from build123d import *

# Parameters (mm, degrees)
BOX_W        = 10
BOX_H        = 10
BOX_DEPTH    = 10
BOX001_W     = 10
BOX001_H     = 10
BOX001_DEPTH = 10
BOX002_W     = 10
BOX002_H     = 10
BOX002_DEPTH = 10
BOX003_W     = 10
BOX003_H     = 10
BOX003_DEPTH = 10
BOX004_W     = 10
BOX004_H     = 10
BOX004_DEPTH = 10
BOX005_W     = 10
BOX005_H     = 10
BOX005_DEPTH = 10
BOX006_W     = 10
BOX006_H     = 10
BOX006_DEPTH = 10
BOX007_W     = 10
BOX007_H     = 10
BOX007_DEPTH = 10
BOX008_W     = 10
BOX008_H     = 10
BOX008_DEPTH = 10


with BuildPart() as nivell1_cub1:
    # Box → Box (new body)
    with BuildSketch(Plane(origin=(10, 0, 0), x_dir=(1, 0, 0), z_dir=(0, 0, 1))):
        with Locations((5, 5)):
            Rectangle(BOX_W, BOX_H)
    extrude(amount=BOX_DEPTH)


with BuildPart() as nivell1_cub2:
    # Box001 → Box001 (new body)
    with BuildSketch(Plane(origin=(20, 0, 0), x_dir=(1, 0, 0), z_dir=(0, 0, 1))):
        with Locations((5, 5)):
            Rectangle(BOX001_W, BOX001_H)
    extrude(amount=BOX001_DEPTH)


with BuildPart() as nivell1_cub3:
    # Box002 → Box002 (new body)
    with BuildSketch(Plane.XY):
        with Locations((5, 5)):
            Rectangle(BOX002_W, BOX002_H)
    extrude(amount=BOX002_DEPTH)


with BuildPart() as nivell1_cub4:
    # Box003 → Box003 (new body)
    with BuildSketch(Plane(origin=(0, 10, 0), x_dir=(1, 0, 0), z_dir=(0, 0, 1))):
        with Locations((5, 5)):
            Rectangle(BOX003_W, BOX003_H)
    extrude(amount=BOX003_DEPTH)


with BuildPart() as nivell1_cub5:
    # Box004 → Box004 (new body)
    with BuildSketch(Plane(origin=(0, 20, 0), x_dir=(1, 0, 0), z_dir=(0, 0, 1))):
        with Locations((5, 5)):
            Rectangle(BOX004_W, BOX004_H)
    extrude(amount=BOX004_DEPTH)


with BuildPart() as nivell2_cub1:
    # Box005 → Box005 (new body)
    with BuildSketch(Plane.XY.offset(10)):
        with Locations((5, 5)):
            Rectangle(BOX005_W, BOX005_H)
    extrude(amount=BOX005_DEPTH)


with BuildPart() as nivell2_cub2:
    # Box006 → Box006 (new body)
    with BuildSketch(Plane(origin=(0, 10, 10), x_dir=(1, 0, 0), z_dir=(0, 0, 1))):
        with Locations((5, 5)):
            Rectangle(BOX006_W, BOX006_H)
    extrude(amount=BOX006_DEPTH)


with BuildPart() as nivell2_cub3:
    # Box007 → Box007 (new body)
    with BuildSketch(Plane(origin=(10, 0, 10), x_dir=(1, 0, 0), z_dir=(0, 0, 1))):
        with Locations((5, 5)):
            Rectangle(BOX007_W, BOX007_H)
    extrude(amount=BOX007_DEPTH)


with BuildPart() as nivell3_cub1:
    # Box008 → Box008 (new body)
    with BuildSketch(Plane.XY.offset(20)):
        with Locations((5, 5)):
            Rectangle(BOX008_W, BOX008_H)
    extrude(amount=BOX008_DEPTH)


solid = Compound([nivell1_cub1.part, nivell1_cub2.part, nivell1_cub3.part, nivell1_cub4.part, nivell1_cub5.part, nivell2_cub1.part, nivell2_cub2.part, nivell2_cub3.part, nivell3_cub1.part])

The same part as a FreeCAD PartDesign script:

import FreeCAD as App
import Part
import Sketcher
Q = App.Units.Quantity

doc = App.newDocument("Part")
body = doc.addObject("PartDesign::Body", "Body")

sketch1 = doc.addObject("Sketcher::SketchObject", "Sketch")
body.addObject(sketch1)
sketch1.AttachmentSupport = (doc.XY_Plane, [""])
sketch1.MapMode = "FlatFace"
sketch1.addGeometry([
    Part.LineSegment(App.Vector(10, 10, 0), App.Vector(10, 0, 0)),
    Part.LineSegment(App.Vector(10, 0, 0), App.Vector(20, 0, 0)),
    Part.LineSegment(App.Vector(20, 0, 0), App.Vector(20, 10, 0)),
    Part.LineSegment(App.Vector(20, 10, 0), App.Vector(10, 10, 0)),
], False)
sketch1.addConstraint([
    Sketcher.Constraint("Coincident", 0, 2, 1, 1),
    Sketcher.Constraint("Coincident", 1, 2, 2, 1),
    Sketcher.Constraint("Coincident", 2, 2, 3, 1),
    Sketcher.Constraint("Coincident", 3, 2, 0, 1),
    Sketcher.Constraint("Vertical", 0),
    Sketcher.Constraint("Horizontal", 1),
    Sketcher.Constraint("Vertical", 2),
    Sketcher.Constraint("Horizontal", 3),
    Sketcher.Constraint("PointOnObject", 0, 2, -1),
    Sketcher.Constraint("Equal", 3, 0),
    Sketcher.Constraint("DistanceX", 1, 1, 1, 2, Q("10 mm")),
    Sketcher.Constraint("DistanceX", -1, 1, 0, 2, Q("10 mm")),
])
pad1 = doc.addObject("PartDesign::Pad", "Pad")
body.addObject(pad1)
pad1.Profile = sketch1
pad1.Length = 10
body2 = doc.addObject("PartDesign::Body", "Body001")

sketch2 = doc.addObject("Sketcher::SketchObject", "Sketch001")
body2.addObject(sketch2)
sketch2.AttachmentSupport = (doc.getObject("XY_Plane001"), [""])
sketch2.MapMode = "FlatFace"
sketch2.addGeometry([
    Part.LineSegment(App.Vector(20, 10, 0), App.Vector(20, 0, 0)),
    Part.LineSegment(App.Vector(20, 0, 0), App.Vector(30, 0, 0)),
    Part.LineSegment(App.Vector(30, 0, 0), App.Vector(30, 10, 0)),
    Part.LineSegment(App.Vector(30, 10, 0), App.Vector(20, 10, 0)),
], False)
sketch2.addConstraint([
    Sketcher.Constraint("Coincident", 0, 2, 1, 1),
    Sketcher.Constraint("Coincident", 1, 2, 2, 1),
    Sketcher.Constraint("Coincident", 2, 2, 3, 1),
    Sketcher.Constraint("Coincident", 3, 2, 0, 1),
    Sketcher.Constraint("Vertical", 0),
    Sketcher.Constraint("Horizontal", 1),
    Sketcher.Constraint("Vertical", 2),
    Sketcher.Constraint("Horizontal", 3),
    Sketcher.Constraint("PointOnObject", 0, 2, -1),
    Sketcher.Constraint("Equal", 3, 0),
    Sketcher.Constraint("DistanceX", 1, 1, 1, 2, Q("10 mm")),
    Sketcher.Constraint("DistanceX", -1, 1, 0, 2, Q("20 mm")),
])
pad2 = doc.addObject("PartDesign::Pad", "Pad001")
body2.addObject(pad2)
pad2.Profile = sketch2
pad2.Length = 10
body3 = doc.addObject("PartDesign::Body", "Body002")

sketch3 = doc.addObject("Sketcher::SketchObject", "Sketch002")
body3.addObject(sketch3)
sketch3.AttachmentSupport = (doc.getObject("XY_Plane002"), [""])
sketch3.MapMode = "FlatFace"
sketch3.addGeometry([
    Part.LineSegment(App.Vector(0, 10, 0), App.Vector(0, 0, 0)),
    Part.LineSegment(App.Vector(0, 0, 0), App.Vector(10, 0, 0)),
    Part.LineSegment(App.Vector(10, 0, 0), App.Vector(10, 10, 0)),
    Part.LineSegment(App.Vector(10, 10, 0), App.Vector(0, 10, 0)),
], False)
sketch3.addConstraint([
    Sketcher.Constraint("Coincident", 0, 2, 1, 1),
    Sketcher.Constraint("Coincident", 1, 2, 2, 1),
    Sketcher.Constraint("Coincident", 2, 2, 3, 1),
    Sketcher.Constraint("Coincident", 3, 2, 0, 1),
    Sketcher.Constraint("Vertical", 0),
    Sketcher.Constraint("Horizontal", 1),
    Sketcher.Constraint("Vertical", 2),
    Sketcher.Constraint("Horizontal", 3),
    Sketcher.Constraint("Coincident", 0, 2, -1, 1),
    Sketcher.Constraint("Equal", 3, 0),
    Sketcher.Constraint("DistanceX", 1, 1, 1, 2, Q("10 mm")),
])
pad3 = doc.addObject("PartDesign::Pad", "Pad002")
body3.addObject(pad3)
pad3.Profile = sketch3
pad3.Length = 10
body4 = doc.addObject("PartDesign::Body", "Body003")

sketch4 = doc.addObject("Sketcher::SketchObject", "Sketch003")
body4.addObject(sketch4)
sketch4.AttachmentSupport = (doc.getObject("XY_Plane003"), [""])
sketch4.MapMode = "FlatFace"
sketch4.addGeometry([
    Part.LineSegment(App.Vector(0, 20, 0), App.Vector(0, 10, 0)),
    Part.LineSegment(App.Vector(0, 10, 0), App.Vector(10, 10, 0)),
    Part.LineSegment(App.Vector(10, 10, 0), App.Vector(10, 20, 0)),
    Part.LineSegment(App.Vector(10, 20, 0), App.Vector(0, 20, 0)),
], False)
sketch4.addConstraint([
    Sketcher.Constraint("Coincident", 0, 2, 1, 1),
    Sketcher.Constraint("Coincident", 1, 2, 2, 1),
    Sketcher.Constraint("Coincident", 2, 2, 3, 1),
    Sketcher.Constraint("Coincident", 3, 2, 0, 1),
    Sketcher.Constraint("Vertical", 0),
    Sketcher.Constraint("Horizontal", 1),
    Sketcher.Constraint("Vertical", 2),
    Sketcher.Constraint("Horizontal", 3),
    Sketcher.Constraint("PointOnObject", 0, 2, -2),
    Sketcher.Constraint("Equal", 3, 0),
    Sketcher.Constraint("DistanceX", 1, 1, 1, 2, Q("10 mm")),
    Sketcher.Constraint("DistanceY", -1, 1, 0, 2, Q("10 mm")),
])
pad4 = doc.addObject("PartDesign::Pad", "Pad003")
body4.addObject(pad4)
pad4.Profile = sketch4
pad4.Length = 10
body5 = doc.addObject("PartDesign::Body", "Body004")

sketch5 = doc.addObject("Sketcher::SketchObject", "Sketch004")
body5.addObject(sketch5)
sketch5.AttachmentSupport = (doc.getObject("XY_Plane004"), [""])
sketch5.MapMode = "FlatFace"
sketch5.addGeometry([
    Part.LineSegment(App.Vector(0, 30, 0), App.Vector(0, 20, 0)),
    Part.LineSegment(App.Vector(0, 20, 0), App.Vector(10, 20, 0)),
    Part.LineSegment(App.Vector(10, 20, 0), App.Vector(10, 30, 0)),
    Part.LineSegment(App.Vector(10, 30, 0), App.Vector(0, 30, 0)),
], False)
sketch5.addConstraint([
    Sketcher.Constraint("Coincident", 0, 2, 1, 1),
    Sketcher.Constraint("Coincident", 1, 2, 2, 1),
    Sketcher.Constraint("Coincident", 2, 2, 3, 1),
    Sketcher.Constraint("Coincident", 3, 2, 0, 1),
    Sketcher.Constraint("Vertical", 0),
    Sketcher.Constraint("Horizontal", 1),
    Sketcher.Constraint("Vertical", 2),
    Sketcher.Constraint("Horizontal", 3),
    Sketcher.Constraint("PointOnObject", 0, 2, -2),
    Sketcher.Constraint("Equal", 3, 0),
    Sketcher.Constraint("DistanceX", 1, 1, 1, 2, Q("10 mm")),
    Sketcher.Constraint("DistanceY", -1, 1, 0, 2, Q("20 mm")),
])
pad5 = doc.addObject("PartDesign::Pad", "Pad004")
body5.addObject(pad5)
pad5.Profile = sketch5
pad5.Length = 10
body6 = doc.addObject("PartDesign::Body", "Body005")

sketch6 = doc.addObject("Sketcher::SketchObject", "Sketch005")
body6.addObject(sketch6)
sketch6.AttachmentSupport = (doc.getObject("XY_Plane005"), [""])
sketch6.MapMode = "FlatFace"
sketch6.AttachmentOffset = App.Placement(App.Vector(0, 0, 10), App.Rotation())
sketch6.addGeometry([
    Part.LineSegment(App.Vector(0, 10, 0), App.Vector(0, 0, 0)),
    Part.LineSegment(App.Vector(0, 0, 0), App.Vector(10, 0, 0)),
    Part.LineSegment(App.Vector(10, 0, 0), App.Vector(10, 10, 0)),
    Part.LineSegment(App.Vector(10, 10, 0), App.Vector(0, 10, 0)),
], False)
sketch6.addConstraint([
    Sketcher.Constraint("Coincident", 0, 2, 1, 1),
    Sketcher.Constraint("Coincident", 1, 2, 2, 1),
    Sketcher.Constraint("Coincident", 2, 2, 3, 1),
    Sketcher.Constraint("Coincident", 3, 2, 0, 1),
    Sketcher.Constraint("Vertical", 0),
    Sketcher.Constraint("Horizontal", 1),
    Sketcher.Constraint("Vertical", 2),
    Sketcher.Constraint("Horizontal", 3),
    Sketcher.Constraint("Coincident", 0, 2, -1, 1),
    Sketcher.Constraint("Equal", 3, 0),
    Sketcher.Constraint("DistanceX", 1, 1, 1, 2, Q("10 mm")),
])
pad6 = doc.addObject("PartDesign::Pad", "Pad005")
body6.addObject(pad6)
pad6.Profile = sketch6
pad6.Length = 10
body7 = doc.addObject("PartDesign::Body", "Body006")

sketch7 = doc.addObject("Sketcher::SketchObject", "Sketch006")
body7.addObject(sketch7)
sketch7.AttachmentSupport = (doc.getObject("XY_Plane006"), [""])
sketch7.MapMode = "FlatFace"
sketch7.AttachmentOffset = App.Placement(App.Vector(0, 0, 10), App.Rotation())
sketch7.addGeometry([
    Part.LineSegment(App.Vector(0, 20, 0), App.Vector(0, 10, 0)),
    Part.LineSegment(App.Vector(0, 10, 0), App.Vector(10, 10, 0)),
    Part.LineSegment(App.Vector(10, 10, 0), App.Vector(10, 20, 0)),
    Part.LineSegment(App.Vector(10, 20, 0), App.Vector(0, 20, 0)),
], False)
sketch7.addConstraint([
    Sketcher.Constraint("Coincident", 0, 2, 1, 1),
    Sketcher.Constraint("Coincident", 1, 2, 2, 1),
    Sketcher.Constraint("Coincident", 2, 2, 3, 1),
    Sketcher.Constraint("Coincident", 3, 2, 0, 1),
    Sketcher.Constraint("Vertical", 0),
    Sketcher.Constraint("Horizontal", 1),
    Sketcher.Constraint("Vertical", 2),
    Sketcher.Constraint("Horizontal", 3),
    Sketcher.Constraint("PointOnObject", 0, 2, -2),
    Sketcher.Constraint("Equal", 3, 0),
    Sketcher.Constraint("DistanceX", 1, 1, 1, 2, Q("10 mm")),
    Sketcher.Constraint("DistanceY", -1, 1, 0, 2, Q("10 mm")),
])
pad7 = doc.addObject("PartDesign::Pad", "Pad006")
body7.addObject(pad7)
pad7.Profile = sketch7
pad7.Length = 10
body8 = doc.addObject("PartDesign::Body", "Body007")

sketch8 = doc.addObject("Sketcher::SketchObject", "Sketch007")
body8.addObject(sketch8)
sketch8.AttachmentSupport = (doc.getObject("XY_Plane007"), [""])
sketch8.MapMode = "FlatFace"
sketch8.AttachmentOffset = App.Placement(App.Vector(0, 0, 10), App.Rotation())
sketch8.addGeometry([
    Part.LineSegment(App.Vector(10, 10, 0), App.Vector(10, 0, 0)),
    Part.LineSegment(App.Vector(10, 0, 0), App.Vector(20, 0, 0)),
    Part.LineSegment(App.Vector(20, 0, 0), App.Vector(20, 10, 0)),
    Part.LineSegment(App.Vector(20, 10, 0), App.Vector(10, 10, 0)),
], False)
sketch8.addConstraint([
    Sketcher.Constraint("Coincident", 0, 2, 1, 1),
    Sketcher.Constraint("Coincident", 1, 2, 2, 1),
    Sketcher.Constraint("Coincident", 2, 2, 3, 1),
    Sketcher.Constraint("Coincident", 3, 2, 0, 1),
    Sketcher.Constraint("Vertical", 0),
    Sketcher.Constraint("Horizontal", 1),
    Sketcher.Constraint("Vertical", 2),
    Sketcher.Constraint("Horizontal", 3),
    Sketcher.Constraint("PointOnObject", 0, 2, -1),
    Sketcher.Constraint("Equal", 3, 0),
    Sketcher.Constraint("DistanceX", 1, 1, 1, 2, Q("10 mm")),
    Sketcher.Constraint("DistanceX", -1, 1, 0, 2, Q("10 mm")),
])
pad8 = doc.addObject("PartDesign::Pad", "Pad007")
body8.addObject(pad8)
pad8.Profile = sketch8
pad8.Length = 10
body9 = doc.addObject("PartDesign::Body", "Body008")

sketch9 = doc.addObject("Sketcher::SketchObject", "Sketch008")
body9.addObject(sketch9)
sketch9.AttachmentSupport = (doc.getObject("XY_Plane008"), [""])
sketch9.MapMode = "FlatFace"
sketch9.AttachmentOffset = App.Placement(App.Vector(0, 0, 20), App.Rotation())
sketch9.addGeometry([
    Part.LineSegment(App.Vector(0, 10, 0), App.Vector(0, 0, 0)),
    Part.LineSegment(App.Vector(0, 0, 0), App.Vector(10, 0, 0)),
    Part.LineSegment(App.Vector(10, 0, 0), App.Vector(10, 10, 0)),
    Part.LineSegment(App.Vector(10, 10, 0), App.Vector(0, 10, 0)),
], False)
sketch9.addConstraint([
    Sketcher.Constraint("Coincident", 0, 2, 1, 1),
    Sketcher.Constraint("Coincident", 1, 2, 2, 1),
    Sketcher.Constraint("Coincident", 2, 2, 3, 1),
    Sketcher.Constraint("Coincident", 3, 2, 0, 1),
    Sketcher.Constraint("Vertical", 0),
    Sketcher.Constraint("Horizontal", 1),
    Sketcher.Constraint("Vertical", 2),
    Sketcher.Constraint("Horizontal", 3),
    Sketcher.Constraint("Coincident", 0, 2, -1, 1),
    Sketcher.Constraint("Equal", 3, 0),
    Sketcher.Constraint("DistanceX", 1, 1, 1, 2, Q("10 mm")),
])
pad9 = doc.addObject("PartDesign::Pad", "Pad008")
body9.addObject(pad9)
pad9.Profile = sketch9
pad9.Length = 10

doc.recompute()
